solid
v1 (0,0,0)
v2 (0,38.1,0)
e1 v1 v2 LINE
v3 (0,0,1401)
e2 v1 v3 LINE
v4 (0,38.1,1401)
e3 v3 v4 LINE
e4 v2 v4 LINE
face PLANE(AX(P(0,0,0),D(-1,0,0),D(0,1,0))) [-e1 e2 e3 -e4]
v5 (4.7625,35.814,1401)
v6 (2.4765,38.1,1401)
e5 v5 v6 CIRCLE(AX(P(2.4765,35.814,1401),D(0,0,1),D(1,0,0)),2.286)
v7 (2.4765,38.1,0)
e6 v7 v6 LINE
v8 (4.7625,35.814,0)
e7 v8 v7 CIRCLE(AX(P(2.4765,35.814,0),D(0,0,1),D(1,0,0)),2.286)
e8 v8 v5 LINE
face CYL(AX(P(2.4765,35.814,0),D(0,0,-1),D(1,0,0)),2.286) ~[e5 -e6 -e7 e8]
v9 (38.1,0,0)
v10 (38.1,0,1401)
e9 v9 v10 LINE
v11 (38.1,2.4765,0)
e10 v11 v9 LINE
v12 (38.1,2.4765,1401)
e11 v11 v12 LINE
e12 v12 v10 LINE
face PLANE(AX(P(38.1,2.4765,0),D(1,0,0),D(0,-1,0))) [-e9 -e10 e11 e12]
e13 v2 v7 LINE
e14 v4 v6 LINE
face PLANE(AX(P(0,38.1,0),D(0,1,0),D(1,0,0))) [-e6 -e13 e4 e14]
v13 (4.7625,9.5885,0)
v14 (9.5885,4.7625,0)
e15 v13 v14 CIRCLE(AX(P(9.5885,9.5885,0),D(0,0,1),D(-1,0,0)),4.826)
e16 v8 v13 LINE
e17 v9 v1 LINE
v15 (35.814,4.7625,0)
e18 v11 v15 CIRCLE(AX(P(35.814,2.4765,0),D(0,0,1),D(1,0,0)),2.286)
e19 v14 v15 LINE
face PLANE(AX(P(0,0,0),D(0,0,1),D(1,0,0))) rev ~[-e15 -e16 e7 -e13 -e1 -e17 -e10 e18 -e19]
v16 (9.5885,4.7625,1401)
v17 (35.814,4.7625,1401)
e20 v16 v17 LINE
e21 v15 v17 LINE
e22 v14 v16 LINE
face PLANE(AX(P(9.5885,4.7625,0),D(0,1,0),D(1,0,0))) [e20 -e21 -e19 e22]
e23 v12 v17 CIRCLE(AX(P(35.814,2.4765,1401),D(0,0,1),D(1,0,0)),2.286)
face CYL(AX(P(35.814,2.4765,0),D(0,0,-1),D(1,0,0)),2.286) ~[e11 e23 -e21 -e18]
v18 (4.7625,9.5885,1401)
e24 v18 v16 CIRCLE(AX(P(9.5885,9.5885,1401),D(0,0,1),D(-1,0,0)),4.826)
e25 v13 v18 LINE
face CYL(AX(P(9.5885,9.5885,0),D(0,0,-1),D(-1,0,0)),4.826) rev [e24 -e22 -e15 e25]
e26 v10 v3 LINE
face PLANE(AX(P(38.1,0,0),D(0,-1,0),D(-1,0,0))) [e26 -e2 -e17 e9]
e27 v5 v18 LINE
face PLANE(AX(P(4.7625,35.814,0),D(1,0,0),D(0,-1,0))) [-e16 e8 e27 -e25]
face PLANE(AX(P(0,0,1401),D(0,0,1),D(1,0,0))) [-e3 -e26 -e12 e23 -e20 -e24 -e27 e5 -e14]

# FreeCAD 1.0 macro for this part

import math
import FreeCAD as App
import Part
import Sketcher

V = App.Vector
Q = App.Units.Quantity

doc = App.newDocument("Part")
body = doc.addObject("PartDesign::Body", "Body")

# Sketch on XY plane
sketch1 = body.newObject("Sketcher::SketchObject", "Sketch")
sketch1.AttachmentSupport = (doc.getObject("XY_Plane"), [""])
sketch1.MapMode = "FlatFace"
sketch1.addGeometry([
    Part.LineSegment(V(0, 0, 0), V(38.1, 0, 0)),  # 0
    Part.LineSegment(V(38.1, 0, 0), V(38.1, 2.4765, 0)),  # 1
    Part.ArcOfCircle(Part.Circle(V(35.814, 2.4765, 0), V(0, 0, 1), 2.286), math.radians(0), math.radians(90)),  # 2
    Part.LineSegment(V(35.814, 4.7625, 0), V(9.5885, 4.7625, 0)),  # 3
    Part.ArcOfCircle(Part.Circle(V(9.5885, 9.5885, 0), V(0, 0, 1), 4.826), math.radians(180), math.radians(270)),  # 4
    Part.LineSegment(V(4.7625, 9.5885, 0), V(4.7625, 35.814, 0)),  # 5
    Part.ArcOfCircle(Part.Circle(V(2.4765, 35.814, 0), V(0, 0, 1), 2.286), math.radians(0), math.radians(90)),  # 6
    Part.LineSegment(V(2.4765, 38.1, 0), V(0, 38.1, 0)),  # 7
    Part.LineSegment(V(0, 38.1, 0), V(0, 0, 0)),  # 8
], False)
sketch1.addConstraint([
    Sketcher.Constraint("Coincident", 0, 2, 1, 1),
    Sketcher.Constraint("Tangent", 1, 2, 2, 1),
    Sketcher.Constraint("Tangent", 2, 2, 3, 1),
    Sketcher.Constraint("Tangent", 3, 2, 4, 2),
    Sketcher.Constraint("Tangent", 4, 1, 5, 1),
    Sketcher.Constraint("Tangent", 5, 2, 6, 1),
    Sketcher.Constraint("Tangent", 6, 2, 7, 1),
    Sketcher.Constraint("Coincident", 7, 2, 8, 1),
    Sketcher.Constraint("Coincident", 8, 2, 0, 1),
    Sketcher.Constraint("Horizontal", 0),
    Sketcher.Constraint("Vertical", 1),
    Sketcher.Constraint("Horizontal", 3),
    Sketcher.Constraint("Vertical", 5),
    Sketcher.Constraint("Horizontal", 7),
    Sketcher.Constraint("Vertical", 8),
    Sketcher.Constraint("Coincident", 8, 2, -1, 1),
    Sketcher.Constraint("Equal", 2, 6),
    Sketcher.Constraint("Equal", 7, 1),
    Sketcher.Constraint("Equal", 3, 5),
    Sketcher.Constraint("Radius", 2, Q("0.09 in")),
    Sketcher.Constraint("Radius", 4, Q("0.19 in")),
    Sketcher.Constraint("DistanceX", 0, 1, 0, 2, Q("1.5 in")),
    Sketcher.Constraint("DistanceY", -1, 1, 2, 2, Q("0.1875 in")),
])
pad1 = body.newObject("PartDesign::Pad", "Pad")
pad1.Profile = sketch1
pad1.Length = 1401

doc.recompute()
